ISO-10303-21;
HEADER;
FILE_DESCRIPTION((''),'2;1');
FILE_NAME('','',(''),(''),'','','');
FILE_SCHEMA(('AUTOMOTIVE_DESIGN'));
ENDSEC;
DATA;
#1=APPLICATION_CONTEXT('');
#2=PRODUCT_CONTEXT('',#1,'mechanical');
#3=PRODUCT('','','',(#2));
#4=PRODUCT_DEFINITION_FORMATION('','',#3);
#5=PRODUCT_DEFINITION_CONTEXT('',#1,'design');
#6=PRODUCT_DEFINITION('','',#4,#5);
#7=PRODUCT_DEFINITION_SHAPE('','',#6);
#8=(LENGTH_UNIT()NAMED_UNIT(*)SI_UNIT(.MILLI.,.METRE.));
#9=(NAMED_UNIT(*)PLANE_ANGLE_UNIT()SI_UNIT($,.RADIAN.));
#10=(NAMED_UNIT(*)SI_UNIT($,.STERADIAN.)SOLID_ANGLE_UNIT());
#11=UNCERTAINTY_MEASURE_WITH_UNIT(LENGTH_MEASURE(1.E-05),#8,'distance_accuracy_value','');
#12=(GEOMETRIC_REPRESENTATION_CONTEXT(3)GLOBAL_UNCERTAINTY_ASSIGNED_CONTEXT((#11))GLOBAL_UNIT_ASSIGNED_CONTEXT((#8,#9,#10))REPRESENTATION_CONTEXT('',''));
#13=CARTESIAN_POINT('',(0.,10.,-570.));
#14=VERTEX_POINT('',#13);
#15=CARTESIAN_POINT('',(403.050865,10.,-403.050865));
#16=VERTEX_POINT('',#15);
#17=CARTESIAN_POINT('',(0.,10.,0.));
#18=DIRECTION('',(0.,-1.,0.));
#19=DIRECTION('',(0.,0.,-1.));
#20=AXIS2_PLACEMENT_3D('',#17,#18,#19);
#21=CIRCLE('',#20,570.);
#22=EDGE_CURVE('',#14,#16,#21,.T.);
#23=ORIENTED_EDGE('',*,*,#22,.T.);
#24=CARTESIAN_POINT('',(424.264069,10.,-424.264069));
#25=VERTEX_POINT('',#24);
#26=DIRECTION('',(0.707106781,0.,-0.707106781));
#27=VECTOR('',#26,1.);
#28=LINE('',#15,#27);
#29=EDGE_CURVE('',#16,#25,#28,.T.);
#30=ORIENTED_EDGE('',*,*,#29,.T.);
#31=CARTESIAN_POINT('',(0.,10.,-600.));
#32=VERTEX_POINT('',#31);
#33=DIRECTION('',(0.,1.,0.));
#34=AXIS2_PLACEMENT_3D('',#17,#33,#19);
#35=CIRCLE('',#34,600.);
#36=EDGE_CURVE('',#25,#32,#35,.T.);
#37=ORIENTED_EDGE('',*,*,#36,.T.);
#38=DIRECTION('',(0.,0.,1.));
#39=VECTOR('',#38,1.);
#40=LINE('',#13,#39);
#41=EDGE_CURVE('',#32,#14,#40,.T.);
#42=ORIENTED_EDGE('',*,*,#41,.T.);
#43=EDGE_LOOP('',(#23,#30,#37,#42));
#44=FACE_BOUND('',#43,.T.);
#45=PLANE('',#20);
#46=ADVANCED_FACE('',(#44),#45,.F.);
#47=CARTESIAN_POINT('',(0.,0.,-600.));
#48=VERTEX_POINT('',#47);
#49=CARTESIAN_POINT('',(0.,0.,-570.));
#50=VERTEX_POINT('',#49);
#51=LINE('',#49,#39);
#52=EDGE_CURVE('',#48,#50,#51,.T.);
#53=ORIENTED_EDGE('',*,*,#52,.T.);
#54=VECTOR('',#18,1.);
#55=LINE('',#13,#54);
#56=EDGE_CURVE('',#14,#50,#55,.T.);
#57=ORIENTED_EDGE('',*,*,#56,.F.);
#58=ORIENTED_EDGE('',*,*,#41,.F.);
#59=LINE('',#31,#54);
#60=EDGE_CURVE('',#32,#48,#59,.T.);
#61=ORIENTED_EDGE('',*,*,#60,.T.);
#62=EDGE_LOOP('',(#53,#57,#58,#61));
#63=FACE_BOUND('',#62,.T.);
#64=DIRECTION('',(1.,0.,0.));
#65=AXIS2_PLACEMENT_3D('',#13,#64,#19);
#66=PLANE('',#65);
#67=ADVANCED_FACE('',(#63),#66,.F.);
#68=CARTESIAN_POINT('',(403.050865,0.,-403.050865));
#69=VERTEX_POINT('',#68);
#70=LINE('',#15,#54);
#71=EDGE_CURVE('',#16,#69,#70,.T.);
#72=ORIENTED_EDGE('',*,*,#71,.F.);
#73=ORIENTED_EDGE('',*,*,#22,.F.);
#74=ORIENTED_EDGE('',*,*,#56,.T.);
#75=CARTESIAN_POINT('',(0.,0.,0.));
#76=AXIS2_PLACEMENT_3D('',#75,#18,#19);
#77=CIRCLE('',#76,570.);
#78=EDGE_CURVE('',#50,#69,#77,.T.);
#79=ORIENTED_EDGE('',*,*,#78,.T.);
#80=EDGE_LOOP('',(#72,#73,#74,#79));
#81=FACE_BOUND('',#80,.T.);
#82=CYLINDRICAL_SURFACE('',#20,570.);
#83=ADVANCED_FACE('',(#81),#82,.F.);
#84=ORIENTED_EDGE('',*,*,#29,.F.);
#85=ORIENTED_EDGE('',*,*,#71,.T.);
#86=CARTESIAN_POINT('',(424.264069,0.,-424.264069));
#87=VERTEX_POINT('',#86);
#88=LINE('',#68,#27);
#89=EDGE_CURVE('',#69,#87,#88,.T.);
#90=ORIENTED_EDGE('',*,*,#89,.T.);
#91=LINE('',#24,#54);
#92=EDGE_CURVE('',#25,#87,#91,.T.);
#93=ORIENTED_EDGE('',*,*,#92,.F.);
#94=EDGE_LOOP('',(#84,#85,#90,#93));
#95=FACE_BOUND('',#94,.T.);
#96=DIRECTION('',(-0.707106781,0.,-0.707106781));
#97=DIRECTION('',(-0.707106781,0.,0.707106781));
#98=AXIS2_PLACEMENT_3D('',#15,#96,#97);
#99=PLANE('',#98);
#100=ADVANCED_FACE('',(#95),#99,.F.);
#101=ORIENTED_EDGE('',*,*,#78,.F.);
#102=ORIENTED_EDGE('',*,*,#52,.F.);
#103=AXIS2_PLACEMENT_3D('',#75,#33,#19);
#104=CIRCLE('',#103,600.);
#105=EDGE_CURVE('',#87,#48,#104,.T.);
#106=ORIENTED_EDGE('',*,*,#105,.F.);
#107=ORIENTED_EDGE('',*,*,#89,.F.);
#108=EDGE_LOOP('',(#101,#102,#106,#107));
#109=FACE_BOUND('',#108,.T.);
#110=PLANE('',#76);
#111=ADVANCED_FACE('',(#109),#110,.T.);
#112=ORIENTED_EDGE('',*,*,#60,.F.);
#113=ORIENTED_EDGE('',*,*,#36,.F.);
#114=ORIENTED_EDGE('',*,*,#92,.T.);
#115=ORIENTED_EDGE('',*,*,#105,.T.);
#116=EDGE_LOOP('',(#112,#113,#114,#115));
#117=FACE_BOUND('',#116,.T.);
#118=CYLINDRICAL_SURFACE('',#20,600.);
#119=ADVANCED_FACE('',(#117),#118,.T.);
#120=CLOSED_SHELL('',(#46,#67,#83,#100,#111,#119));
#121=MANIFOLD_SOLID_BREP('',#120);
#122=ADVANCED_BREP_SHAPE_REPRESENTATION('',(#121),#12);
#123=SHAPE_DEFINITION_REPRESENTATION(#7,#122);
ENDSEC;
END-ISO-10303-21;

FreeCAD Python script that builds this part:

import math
import FreeCAD as App
import Part
import Sketcher
Q = App.Units.Quantity

doc = App.newDocument("Part")
body = doc.addObject("PartDesign::Body", "Body")

# Sketch on XZ plane
sketch1 = doc.addObject("Sketcher::SketchObject", "Sketch")
body.addObject(sketch1)
sketch1.AttachmentSupport = (doc.XZ_Plane, [""])
sketch1.MapMode = "FlatFace"
sketch1.addGeometry(Part.LineSegment(App.Vector(0, -600, 0), App.Vector(0, -570, 0)), False)
sketch1.addGeometry(Part.ArcOfCircle(Part.Circle(App.Vector(0, 0, 0), App.Vector(0, 0, 1), 570), math.radians(-90), math.radians(-45)), False)
sketch1.addGeometry(Part.LineSegment(App.Vector(403, -403, 0), App.Vector(424, -424, 0)), False)
sketch1.addGeometry(Part.ArcOfCircle(Part.Circle(App.Vector(0, 0, 0), App.Vector(0, 0, 1), 600), math.radians(-90), math.radians(-45)), False)
sketch1.addConstraint(Sketcher.Constraint("Coincident", 0, 2, 1, 1))
sketch1.addConstraint(Sketcher.Constraint("Coincident", 1, 2, 2, 1))
sketch1.addConstraint(Sketcher.Constraint("Coincident", 2, 2, 3, 2))
sketch1.addConstraint(Sketcher.Constraint("Coincident", 3, 1, 0, 1))
sketch1.addConstraint(Sketcher.Constraint("Vertical", 0))
sketch1.addConstraint(Sketcher.Constraint("Coincident", 1, 3, -1, 1))
sketch1.addConstraint(Sketcher.Constraint("Coincident", 3, 3, -1, 1))
sketch1.addConstraint(Sketcher.Constraint("PointOnObject", 0, 2, -2))
sketch1.addConstraint(Sketcher.Constraint("Radius", 1, Q("570 mm")))
sketch1.addConstraint(Sketcher.Constraint("Radius", 3, Q("600 mm")))
sketch1.addConstraint(Sketcher.Constraint("Angle", 2, Q("-45 deg")))
sketch1.addConstraint(Sketcher.Constraint("DistanceX", -1, 1, 2, 2, Q("424.264069 mm")))
pad1 = doc.addObject("PartDesign::Pad", "Pad")
body.addObject(pad1)
pad1.Profile = sketch1
pad1.Length = 10
pad1.Reversed = True

doc.recompute()
